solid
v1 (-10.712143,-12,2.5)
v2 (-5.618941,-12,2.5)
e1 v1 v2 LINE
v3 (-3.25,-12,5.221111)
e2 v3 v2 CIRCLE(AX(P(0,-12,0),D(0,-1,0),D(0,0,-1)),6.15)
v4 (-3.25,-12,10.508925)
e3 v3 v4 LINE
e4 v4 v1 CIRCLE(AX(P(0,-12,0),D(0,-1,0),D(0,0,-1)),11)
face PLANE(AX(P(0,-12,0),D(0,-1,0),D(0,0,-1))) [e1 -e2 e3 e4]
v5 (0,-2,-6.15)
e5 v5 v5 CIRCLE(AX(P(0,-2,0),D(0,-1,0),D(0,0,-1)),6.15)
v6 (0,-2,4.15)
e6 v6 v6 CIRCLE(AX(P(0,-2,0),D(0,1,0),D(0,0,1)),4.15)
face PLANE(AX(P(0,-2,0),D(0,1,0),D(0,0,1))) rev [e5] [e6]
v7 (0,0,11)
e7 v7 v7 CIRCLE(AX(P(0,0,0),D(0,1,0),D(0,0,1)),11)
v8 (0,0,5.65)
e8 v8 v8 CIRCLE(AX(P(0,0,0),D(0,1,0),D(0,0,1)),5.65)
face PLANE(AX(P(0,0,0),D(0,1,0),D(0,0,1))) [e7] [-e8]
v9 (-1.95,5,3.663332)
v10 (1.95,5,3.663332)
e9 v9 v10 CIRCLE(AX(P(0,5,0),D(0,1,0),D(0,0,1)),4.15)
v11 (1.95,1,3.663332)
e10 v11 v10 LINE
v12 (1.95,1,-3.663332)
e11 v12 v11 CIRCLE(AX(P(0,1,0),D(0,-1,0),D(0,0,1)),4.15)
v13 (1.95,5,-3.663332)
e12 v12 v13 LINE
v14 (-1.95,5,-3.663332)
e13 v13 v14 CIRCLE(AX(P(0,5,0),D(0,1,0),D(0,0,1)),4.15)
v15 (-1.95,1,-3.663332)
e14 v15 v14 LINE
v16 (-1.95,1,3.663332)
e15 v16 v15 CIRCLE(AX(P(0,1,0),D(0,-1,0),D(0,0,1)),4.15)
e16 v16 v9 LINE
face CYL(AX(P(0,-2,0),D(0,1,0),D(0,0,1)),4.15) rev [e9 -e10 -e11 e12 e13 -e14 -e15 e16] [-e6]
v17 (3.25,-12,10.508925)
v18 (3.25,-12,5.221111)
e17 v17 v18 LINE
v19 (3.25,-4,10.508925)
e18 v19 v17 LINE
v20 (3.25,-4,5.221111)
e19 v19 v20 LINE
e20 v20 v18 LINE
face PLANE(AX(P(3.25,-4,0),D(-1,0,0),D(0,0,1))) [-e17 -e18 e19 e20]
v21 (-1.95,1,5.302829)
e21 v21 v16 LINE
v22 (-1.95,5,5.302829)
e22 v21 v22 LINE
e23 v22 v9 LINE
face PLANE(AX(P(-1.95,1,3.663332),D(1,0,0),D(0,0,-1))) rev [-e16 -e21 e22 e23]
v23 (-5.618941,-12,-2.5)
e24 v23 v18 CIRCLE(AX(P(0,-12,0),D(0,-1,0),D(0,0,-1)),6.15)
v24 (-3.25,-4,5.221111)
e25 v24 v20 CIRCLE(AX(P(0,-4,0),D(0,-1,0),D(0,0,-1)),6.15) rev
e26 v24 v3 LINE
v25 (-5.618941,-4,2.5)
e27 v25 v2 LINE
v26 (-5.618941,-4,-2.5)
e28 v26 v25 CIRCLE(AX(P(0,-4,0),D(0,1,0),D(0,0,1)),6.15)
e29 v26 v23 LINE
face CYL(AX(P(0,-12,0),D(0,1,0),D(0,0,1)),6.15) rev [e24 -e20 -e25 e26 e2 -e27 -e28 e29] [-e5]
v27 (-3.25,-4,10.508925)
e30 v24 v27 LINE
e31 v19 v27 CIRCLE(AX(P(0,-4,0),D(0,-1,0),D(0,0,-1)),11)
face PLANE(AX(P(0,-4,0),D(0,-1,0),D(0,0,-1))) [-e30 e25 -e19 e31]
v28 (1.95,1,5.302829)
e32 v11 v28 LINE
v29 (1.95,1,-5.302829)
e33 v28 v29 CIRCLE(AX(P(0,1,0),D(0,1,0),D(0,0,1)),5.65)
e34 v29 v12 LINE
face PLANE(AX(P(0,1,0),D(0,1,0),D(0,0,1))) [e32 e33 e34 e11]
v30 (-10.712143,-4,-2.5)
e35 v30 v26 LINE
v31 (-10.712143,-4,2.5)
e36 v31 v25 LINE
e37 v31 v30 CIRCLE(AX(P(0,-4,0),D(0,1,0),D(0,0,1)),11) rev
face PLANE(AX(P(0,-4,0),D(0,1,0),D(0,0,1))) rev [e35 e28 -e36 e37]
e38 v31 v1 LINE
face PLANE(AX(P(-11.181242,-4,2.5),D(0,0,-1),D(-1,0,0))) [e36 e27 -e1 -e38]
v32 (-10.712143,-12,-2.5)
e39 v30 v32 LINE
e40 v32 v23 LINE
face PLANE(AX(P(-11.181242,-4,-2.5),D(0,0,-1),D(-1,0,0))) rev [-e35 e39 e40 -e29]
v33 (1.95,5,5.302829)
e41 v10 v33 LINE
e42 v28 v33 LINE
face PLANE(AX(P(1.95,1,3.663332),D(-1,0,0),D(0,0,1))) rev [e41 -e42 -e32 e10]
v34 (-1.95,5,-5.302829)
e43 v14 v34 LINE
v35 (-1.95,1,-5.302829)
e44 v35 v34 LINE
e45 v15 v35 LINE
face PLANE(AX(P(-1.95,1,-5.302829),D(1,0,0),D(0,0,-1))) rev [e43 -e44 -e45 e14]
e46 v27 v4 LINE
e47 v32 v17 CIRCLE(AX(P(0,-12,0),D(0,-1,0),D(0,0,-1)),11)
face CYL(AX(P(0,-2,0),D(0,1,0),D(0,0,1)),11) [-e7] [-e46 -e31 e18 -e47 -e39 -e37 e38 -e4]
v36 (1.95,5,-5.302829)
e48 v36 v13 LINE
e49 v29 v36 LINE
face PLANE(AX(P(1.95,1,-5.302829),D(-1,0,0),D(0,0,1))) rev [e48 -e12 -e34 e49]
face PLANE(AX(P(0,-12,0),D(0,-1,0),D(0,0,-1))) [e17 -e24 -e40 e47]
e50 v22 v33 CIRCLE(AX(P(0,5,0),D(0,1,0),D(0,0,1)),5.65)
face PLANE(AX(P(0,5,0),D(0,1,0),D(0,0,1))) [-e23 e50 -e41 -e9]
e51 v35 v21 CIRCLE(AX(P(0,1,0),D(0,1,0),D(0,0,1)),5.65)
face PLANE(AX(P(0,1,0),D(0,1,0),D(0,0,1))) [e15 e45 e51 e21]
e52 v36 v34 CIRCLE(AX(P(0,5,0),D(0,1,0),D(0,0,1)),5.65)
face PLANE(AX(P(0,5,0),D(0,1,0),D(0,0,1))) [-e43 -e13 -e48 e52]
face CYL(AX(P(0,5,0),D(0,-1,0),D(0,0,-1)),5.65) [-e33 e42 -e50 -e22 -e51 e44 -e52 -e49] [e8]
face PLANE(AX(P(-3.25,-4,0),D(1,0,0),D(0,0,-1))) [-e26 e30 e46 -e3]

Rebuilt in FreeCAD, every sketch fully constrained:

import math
import FreeCAD as App
import Part
import Sketcher
from FreeCAD import Vector

doc = App.newDocument("Part")
params = doc.addObject("Spreadsheet::Sheet", "Params")
for row, (alias, value) in enumerate([
    ("sketch1_diameter", "22 mm"),
    ("sketch1_diameter2", "8.3 mm"),
    ("pad1_length", "2 mm"),
    ("sketch2_diameter", "11.3 mm"),
    ("sketch2_diameter2", "8.3 mm"),
    ("pad2_length", "5 mm"),
    ("sketch3_radius", "4.15 mm"),
    ("sketch3_radius2", "5.65 mm"),
    ("pocket1_length", "4 mm"),
    ("sketch4_diameter", "22 mm"),
    ("sketch4_diameter2", "12.3 mm"),
    ("pad3_length", "10 mm"),
    ("sketch5_radius", "11 mm"),
    ("sketch5_height", "5 mm"),
    ("sketch5_radius2", "6.15 mm"),
    ("pocket2_length", "8 mm"),
], start=1):
    params.set(f"A{row}", alias)
    params.set(f"B{row}", "=" + value)
    params.setAlias(f"B{row}", alias)

body = doc.addObject("PartDesign::Body", "Body")

sketch1 = body.newObject("Sketcher::SketchObject", "Sketch")
sketch1.AttachmentSupport = (doc.getObject("XZ_Plane"), [""])
sketch1.MapMode = "FlatFace"
sketch1.addGeometry(Part.Circle(Vector(0, 0, 0), Vector(0, 0, 1), 11), False)
sketch1.addGeometry(Part.Circle(Vector(0, 0, 0), Vector(0, 0, 1), 4.2), False)
sketch1.addConstraint(Sketcher.Constraint("Coincident", 0, 3, -1, 1))
sketch1.addConstraint(Sketcher.Constraint("Coincident", 1, 3, -1, 1))
sketch1.addConstraint(Sketcher.Constraint("Diameter", 0, 22.0))
sketch1.addConstraint(Sketcher.Constraint("Diameter", 1, 8.3))
sketch1.setExpression("Constraints[2]", "Params.sketch1_diameter")
sketch1.setExpression("Constraints[3]", "Params.sketch1_diameter2")
pad1 = body.newObject("PartDesign::Pad", "Pad")
pad1.Profile = sketch1
pad1.setExpression("Length", "Params.pad1_length")

sketch2 = body.newObject("Sketcher::SketchObject", "Sketch001")
sketch2.AttachmentSupport = (doc.getObject("XZ_Plane"), [""])
sketch2.MapMode = "FlatFace"
sketch2.AttachmentOffset = App.Placement(Vector(0, 0, -5), App.Rotation())
sketch2.addGeometry(Part.Circle(Vector(0, 0, 0), Vector(0, 0, 1), 5.7), False)
sketch2.addGeometry(Part.Circle(Vector(0, 0, 0), Vector(0, 0, 1), 4.2), False)
sketch2.addConstraint(Sketcher.Constraint("Coincident", 0, 3, -1, 1))
sketch2.addConstraint(Sketcher.Constraint("Coincident", 1, 3, -1, 1))
sketch2.addConstraint(Sketcher.Constraint("Diameter", 0, 11.3))
sketch2.addConstraint(Sketcher.Constraint("Diameter", 1, 8.3))
sketch2.setExpression("Constraints[2]", "Params.sketch2_diameter")
sketch2.setExpression("Constraints[3]", "Params.sketch2_diameter2")
pad2 = body.newObject("PartDesign::Pad", "Pad001")
pad2.Profile = sketch2
pad2.setExpression("Length", "Params.pad2_length")

sketch3 = body.newObject("Sketcher::SketchObject", "Sketch002")
sketch3.AttachmentSupport = (doc.getObject("XZ_Plane"), [""])
sketch3.MapMode = "FlatFace"
sketch3.AttachmentOffset = App.Placement(Vector(0, 0, -5), App.Rotation())
sketch3.addGeometry(Part.LineSegment(Vector(1.9, -5.3, 0), Vector(1.9, -3.7, 0)), False)
sketch3.addGeometry(Part.ArcOfCircle(Part.Circle(Vector(0, 0, 0), Vector(0, 0, 1), 4.2), math.radians(-62), math.radians(62)), False)
sketch3.addGeometry(Part.LineSegment(Vector(1.9, 3.7, 0), Vector(1.9, 5.3, 0)), False)
sketch3.addGeometry(Part.ArcOfCircle(Part.Circle(Vector(0, 0, 0), Vector(0, 0, 1), 5.6), math.radians(-70), math.radians(70)), False)
sketch3.addGeometry(Part.LineSegment(Vector(-1.9, -3.7, 0), Vector(-1.9, -5.3, 0)), False)
sketch3.addGeometry(Part.ArcOfCircle(Part.Circle(Vector(0, 0, 0), Vector(0, 0, 1), 5.6), math.radians(110), math.radians(250)), False)
sketch3.addGeometry(Part.LineSegment(Vector(-1.9, 5.3, 0), Vector(-1.9, 3.7, 0)), False)
sketch3.addGeometry(Part.ArcOfCircle(Part.Circle(Vector(0, 0, 0), Vector(0, 0, 1), 4.2), math.radians(118), math.radians(242)), False)
sketch3.addConstraint(Sketcher.Constraint("Coincident", 0, 2, 1, 1))
sketch3.addConstraint(Sketcher.Constraint("Coincident", 1, 2, 2, 1))
sketch3.addConstraint(Sketcher.Constraint("Coincident", 2, 2, 3, 2))
sketch3.addConstraint(Sketcher.Constraint("Coincident", 3, 1, 0, 1))
sketch3.addConstraint(Sketcher.Constraint("Coincident", 4, 2, 5, 2))
sketch3.addConstraint(Sketcher.Constraint("Coincident", 5, 1, 6, 1))
sketch3.addConstraint(Sketcher.Constraint("Coincident", 6, 2, 7, 1))
sketch3.addConstraint(Sketcher.Constraint("Coincident", 7, 2, 4, 1))
sketch3.addConstraint(Sketcher.Constraint("Vertical", 0))
sketch3.addConstraint(Sketcher.Constraint("Vertical", 2))
sketch3.addConstraint(Sketcher.Constraint("Vertical", 4))
sketch3.addConstraint(Sketcher.Constraint("Vertical", 6))
sketch3.addConstraint(Sketcher.Constraint("Coincident", 1, 3, -1, 1))
sketch3.addConstraint(Sketcher.Constraint("Coincident", 3, 3, -1, 1))
sketch3.addConstraint(Sketcher.Constraint("Coincident", 5, 3, -1, 1))
sketch3.addConstraint(Sketcher.Constraint("Coincident", 7, 3, -1, 1))
sketch3.addConstraint(Sketcher.Constraint("Equal", 3, 5))
sketch3.addConstraint(Sketcher.Constraint("Equal", 1, 7))
sketch3.addConstraint(Sketcher.Constraint("Horizontal", 3, 1, 4, 2))
sketch3.addConstraint(Sketcher.Constraint("Horizontal", 2, 2, 5, 1))
sketch3.addConstraint(Sketcher.Constraint("Vertical", 0, 2, 1, 2))
sketch3.addConstraint(Sketcher.Constraint("Radius", 1, 4.15))
sketch3.addConstraint(Sketcher.Constraint("Radius", 3, 5.65))
sketch3.addConstraint(Sketcher.Constraint("DistanceX", 4, 2, 3, 1, 3.9))
sketch3.setExpression("Constraints[21]", "Params.sketch3_radius")
sketch3.setExpression("Constraints[22]", "Params.sketch3_radius2")
pocket1 = body.newObject("PartDesign::Pocket", "Pocket")
pocket1.Profile = sketch3
pocket1.setExpression("Length", "Params.pocket1_length")
pocket1.Reversed = True

sketch4 = body.newObject("Sketcher::SketchObject", "Sketch003")
sketch4.AttachmentSupport = (doc.getObject("XZ_Plane"), [""])
sketch4.MapMode = "FlatFace"
sketch4.AttachmentOffset = App.Placement(Vector(0, 0, 2), App.Rotation())
sketch4.addGeometry(Part.Circle(Vector(0, 0, 0), Vector(0, 0, 1), 11), False)
sketch4.addGeometry(Part.Circle(Vector(0, 0, 0), Vector(0, 0, 1), 6), False)
sketch4.addConstraint(Sketcher.Constraint("Coincident", 0, 3, -1, 1))
sketch4.addConstraint(Sketcher.Constraint("Coincident", 1, 3, -1, 1))
sketch4.addConstraint(Sketcher.Constraint("Diameter", 0, 22.0))
sketch4.addConstraint(Sketcher.Constraint("Diameter", 1, 12.3))
sketch4.setExpression("Constraints[2]", "Params.sketch4_diameter")
sketch4.setExpression("Constraints[3]", "Params.sketch4_diameter2")
pad3 = body.newObject("PartDesign::Pad", "Pad002")
pad3.Profile = sketch4
pad3.setExpression("Length", "Params.pad3_length")

sketch5 = body.newObject("Sketcher::SketchObject", "Sketch004")
sketch5.AttachmentSupport = (doc.getObject("XZ_Plane"), [""])
sketch5.MapMode = "FlatFace"
sketch5.AttachmentOffset = App.Placement(Vector(0, 0, 4), App.Rotation())
sketch5.addGeometry(Part.ArcOfCircle(Part.Circle(Vector(0, 0, 0), Vector(0, 0, 1), 11), math.radians(73), math.radians(107)), False)
sketch5.addGeometry(Part.LineSegment(Vector(-3, 11, 0), Vector(-3, 5, 0)), False)
sketch5.addGeometry(Part.ArcOfCircle(Part.Circle(Vector(0, 0, 0), Vector(0, 0, 1), 6), math.radians(58), math.radians(122)), False)
sketch5.addGeometry(Part.LineSegment(Vector(3, 5, 0), Vector(3, 11, 0)), False)
sketch5.addGeometry(Part.LineSegment(Vector(-11, 2, 0), Vector(-11, -2, 0)), False)
sketch5.addGeometry(Part.LineSegment(Vector(-11, -2, 0), Vector(-6, -2, 0)), False)
sketch5.addGeometry(Part.LineSegment(Vector(-6, -2, 0), Vector(-6, 2, 0)), False)
sketch5.addGeometry(Part.LineSegment(Vector(-6, 2, 0), Vector(-11, 2, 0)), False)
sketch5.addConstraint(Sketcher.Constraint("Coincident", 0, 2, 1, 1))
sketch5.addConstraint(Sketcher.Constraint("Coincident", 1, 2, 2, 2))
sketch5.addConstraint(Sketcher.Constraint("Coincident", 2, 1, 3, 1))
sketch5.addConstraint(Sketcher.Constraint("Coincident", 3, 2, 0, 1))
sketch5.addConstraint(Sketcher.Constraint("Coincident", 4, 2, 5, 1))
sketch5.addConstraint(Sketcher.Constraint("Coincident", 5, 2, 6, 1))
sketch5.addConstraint(Sketcher.Constraint("Coincident", 6, 2, 7, 1))
sketch5.addConstraint(Sketcher.Constraint("Coincident", 7, 2, 4, 1))
sketch5.addConstraint(Sketcher.Constraint("Vertical", 1))
sketch5.addConstraint(Sketcher.Constraint("Vertical", 3))
sketch5.addConstraint(Sketcher.Constraint("Vertical", 4))
sketch5.addConstraint(Sketcher.Constraint("Horizontal", 5))
sketch5.addConstraint(Sketcher.Constraint("Vertical", 6))
sketch5.addConstraint(Sketcher.Constraint("Horizontal", 7))
sketch5.addConstraint(Sketcher.Constraint("Coincident", 0, 3, -1, 1))
sketch5.addConstraint(Sketcher.Constraint("Coincident", 2, 3, -1, 1))
sketch5.addConstraint(Sketcher.Constraint("Horizontal", 1, 2, 2, 1))
sketch5.addConstraint(Sketcher.Constraint("Radius", 0, 11.0))
sketch5.addConstraint(Sketcher.Constraint("DistanceY", 4, 2, 4, 1, 5.0))
sketch5.addConstraint(Sketcher.Constraint("Radius", 2, 6.15))
sketch5.addConstraint(Sketcher.Constraint("DistanceY", 4, 2, -1, 1, 2.5))
sketch5.addConstraint(Sketcher.Constraint("DistanceX", 1, 2, 2, 1, 6.5))
sketch5.addConstraint(Sketcher.Constraint("DistanceX", 5, 1, 5, 2, 5.562301))
sketch5.addConstraint(Sketcher.Constraint("DistanceX", 4, 2, -1, 1, 11.181242))
sketch5.setExpression("Constraints[17]", "Params.sketch5_radius")
sketch5.setExpression("Constraints[18]", "Params.sketch5_height")
sketch5.setExpression("Constraints[19]", "Params.sketch5_radius2")
pocket2 = body.newObject("PartDesign::Pocket", "Pocket001")
pocket2.Profile = sketch5
pocket2.setExpression("Length", "Params.pocket2_length")
pocket2.Reversed = True

doc.recompute()
